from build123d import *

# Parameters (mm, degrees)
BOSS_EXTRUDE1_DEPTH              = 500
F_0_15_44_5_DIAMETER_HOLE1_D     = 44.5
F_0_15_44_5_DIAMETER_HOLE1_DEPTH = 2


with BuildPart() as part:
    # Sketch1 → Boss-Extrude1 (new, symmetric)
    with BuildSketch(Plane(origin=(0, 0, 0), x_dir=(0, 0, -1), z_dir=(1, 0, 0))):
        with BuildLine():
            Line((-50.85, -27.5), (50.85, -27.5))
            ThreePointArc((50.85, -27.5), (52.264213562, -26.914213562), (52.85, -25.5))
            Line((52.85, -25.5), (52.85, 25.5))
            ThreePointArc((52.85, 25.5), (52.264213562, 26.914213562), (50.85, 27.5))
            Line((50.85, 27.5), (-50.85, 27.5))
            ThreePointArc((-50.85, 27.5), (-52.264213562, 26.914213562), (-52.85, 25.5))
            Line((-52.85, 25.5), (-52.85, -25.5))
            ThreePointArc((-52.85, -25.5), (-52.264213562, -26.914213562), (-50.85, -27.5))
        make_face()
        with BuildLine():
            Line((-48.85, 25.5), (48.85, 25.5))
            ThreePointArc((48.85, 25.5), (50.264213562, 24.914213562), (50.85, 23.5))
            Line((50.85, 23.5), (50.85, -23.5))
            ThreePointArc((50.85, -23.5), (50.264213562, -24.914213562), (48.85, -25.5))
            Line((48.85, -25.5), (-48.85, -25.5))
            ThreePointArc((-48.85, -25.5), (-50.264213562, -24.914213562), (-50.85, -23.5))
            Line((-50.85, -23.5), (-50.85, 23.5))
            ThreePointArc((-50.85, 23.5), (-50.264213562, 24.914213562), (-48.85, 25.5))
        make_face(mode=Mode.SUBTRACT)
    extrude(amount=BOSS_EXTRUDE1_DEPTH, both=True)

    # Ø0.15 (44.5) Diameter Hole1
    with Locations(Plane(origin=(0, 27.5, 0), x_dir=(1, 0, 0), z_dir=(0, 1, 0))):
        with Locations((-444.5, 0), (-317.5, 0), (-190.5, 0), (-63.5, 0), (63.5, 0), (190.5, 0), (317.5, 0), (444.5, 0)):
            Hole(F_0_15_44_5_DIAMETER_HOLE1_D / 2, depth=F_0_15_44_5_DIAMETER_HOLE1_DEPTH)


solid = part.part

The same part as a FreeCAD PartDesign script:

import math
import FreeCAD as App
import Part
import Sketcher

V = App.Vector
Q = App.Units.Quantity

doc = App.newDocument("Part")
body = doc.addObject("PartDesign::Body", "Body")

# Sketch on YZ plane
sketch1 = doc.addObject("Sketcher::SketchObject", "Sketch")
body.addObject(sketch1)
sketch1.AttachmentSupport = (doc.YZ_Plane, [""])
sketch1.MapMode = "FlatFace"
sketch1.addGeometry([
    Part.LineSegment(V(-27.5, 50.85, 0), V(-27.5, -50.85, 0)),  # 0
    Part.ArcOfCircle(Part.Circle(V(-25.5, -50.85, 0), V(0, 0, 1), 2), math.radians(-180), math.radians(-90)),  # 1
    Part.LineSegment(V(-25.5, -52.85, 0), V(25.5, -52.85, 0)),  # 2
    Part.ArcOfCircle(Part.Circle(V(25.5, -50.85, 0), V(0, 0, 1), 2), math.radians(-90), math.radians(0)),  # 3
    Part.LineSegment(V(27.5, -50.85, 0), V(27.5, 50.85, 0)),  # 4
    Part.ArcOfCircle(Part.Circle(V(25.5, 50.85, 0), V(0, 0, 1), 2), math.radians(0), math.radians(90)),  # 5
    Part.LineSegment(V(25.5, 52.85, 0), V(-25.5, 52.85, 0)),  # 6
    Part.ArcOfCircle(Part.Circle(V(-25.5, 50.85, 0), V(0, 0, 1), 2), math.radians(90), math.radians(180)),  # 7
    Part.ArcOfCircle(Part.Circle(V(23.5, 48.85, 0), V(0, 0, 1), 2), math.radians(0), math.radians(90)),  # 8
    Part.LineSegment(V(25.5, 48.85, 0), V(25.5, -48.85, 0)),  # 9
    Part.ArcOfCircle(Part.Circle(V(23.5, -48.85, 0), V(0, 0, 1), 2), math.radians(-90), math.radians(0)),  # 10
    Part.LineSegment(V(23.5, -50.85, 0), V(-23.5, -50.85, 0)),  # 11
    Part.ArcOfCircle(Part.Circle(V(-23.5, -48.85, 0), V(0, 0, 1), 2), math.radians(-180), math.radians(-90)),  # 12
    Part.LineSegment(V(-25.5, -48.85, 0), V(-25.5, 48.85, 0)),  # 13
    Part.ArcOfCircle(Part.Circle(V(-23.5, 48.85, 0), V(0, 0, 1), 2), math.radians(90), math.radians(180)),  # 14
    Part.LineSegment(V(-23.5, 50.85, 0), V(23.5, 50.85, 0)),  # 15
], False)
sketch1.addConstraint([
    Sketcher.Constraint("Tangent", 0, 2, 1, 1),
    Sketcher.Constraint("Tangent", 1, 2, 2, 1),
    Sketcher.Constraint("Tangent", 2, 2, 3, 1),
    Sketcher.Constraint("Tangent", 3, 2, 4, 1),
    Sketcher.Constraint("Tangent", 4, 2, 5, 1),
    Sketcher.Constraint("Tangent", 5, 2, 6, 1),
    Sketcher.Constraint("Tangent", 6, 2, 7, 1),
    Sketcher.Constraint("Tangent", 7, 2, 0, 1),
    Sketcher.Constraint("Tangent", 8, 1, 9, 1),
    Sketcher.Constraint("Tangent", 9, 2, 10, 2),
    Sketcher.Constraint("Tangent", 10, 1, 11, 1),
    Sketcher.Constraint("Tangent", 11, 2, 12, 2),
    Sketcher.Constraint("Tangent", 12, 1, 13, 1),
    Sketcher.Constraint("Tangent", 13, 2, 14, 2),
    Sketcher.Constraint("Tangent", 14, 1, 15, 1),
    Sketcher.Constraint("Tangent", 15, 2, 8, 2),
    Sketcher.Constraint("Vertical", 0),
    Sketcher.Constraint("Horizontal", 2),
    Sketcher.Constraint("Vertical", 4),
    Sketcher.Constraint("Horizontal", 6),
    Sketcher.Constraint("Vertical", 9),
    Sketcher.Constraint("Horizontal", 11),
    Sketcher.Constraint("Vertical", 13),
    Sketcher.Constraint("Horizontal", 15),
    Sketcher.Constraint("Equal", 1, 3),
    Sketcher.Constraint("Equal", 3, 5),
    Sketcher.Constraint("Equal", 5, 7),
    Sketcher.Constraint("Equal", 7, 8),
    Sketcher.Constraint("Equal", 8, 10),
    Sketcher.Constraint("Equal", 10, 12),
    Sketcher.Constraint("Equal", 12, 14),
    Sketcher.Constraint("Symmetric", 1, 3, 5, 3, -1, 1),
    Sketcher.Constraint("Symmetric", 8, 3, 12, 3, -1, 1),
    Sketcher.Constraint("Horizontal", 3, 2, 10, 1),
    Sketcher.Constraint("Vertical", 5, 2, 8, 1),
    Sketcher.Constraint("Radius", 1, Q("2 mm")),
    Sketcher.Constraint("DistanceX", 2, 1, 2, 2, Q("51 mm")),
    Sketcher.Constraint("DistanceY", 0, 2, 0, 1, Q("101.7 mm")),
])
pad1 = doc.addObject("PartDesign::Pad", "Pad")
body.addObject(pad1)
pad1.Profile = sketch1
pad1.Length = 1000
pad1.Midplane = True

# Sketch on XZ plane
sketch2 = doc.addObject("Sketcher::SketchObject", "Sketch001")
body.addObject(sketch2)
sketch2.AttachmentSupport = (doc.XZ_Plane, [""])
sketch2.MapMode = "FlatFace"
sketch2.AttachmentOffset = App.Placement(V(0, 0, -27.5), App.Rotation())
sketch2.addGeometry([
    Part.Circle(V(-444.5, 0, 0), V(0, 0, 1), 22.25),  # 0
    Part.Circle(V(-317.5, 0, 0), V(0, 0, 1), 22.25),  # 1
    Part.Circle(V(-190.5, 0, 0), V(0, 0, 1), 22.25),  # 2
    Part.Circle(V(-63.5, 0, 0), V(0, 0, 1), 22.25),  # 3
    Part.Circle(V(63.5, 0, 0), V(0, 0, 1), 22.25),  # 4
    Part.Circle(V(190.5, 0, 0), V(0, 0, 1), 22.25),  # 5
    Part.Circle(V(317.5, 0, 0), V(0, 0, 1), 22.25),  # 6
    Part.Circle(V(444.5, 0, 0), V(0, 0, 1), 22.25),  # 7
], False)
sketch2.addConstraint([
    Sketcher.Constraint("Equal", 0, 1),
    Sketcher.Constraint("Equal", 1, 2),
    Sketcher.Constraint("Equal", 2, 3),
    Sketcher.Constraint("Equal", 3, 4),
    Sketcher.Constraint("Equal", 4, 5),
    Sketcher.Constraint("Equal", 5, 6),
    Sketcher.Constraint("Equal", 6, 7),
    Sketcher.Constraint("Symmetric", 3, 3, 4, 3, -1, 1),
    Sketcher.Constraint("Symmetric", 2, 3, 5, 3, -1, 1),
    Sketcher.Constraint("Symmetric", 1, 3, 6, 3, -1, 1),
    Sketcher.Constraint("Symmetric", 0, 3, 7, 3, -1, 1),
    Sketcher.Constraint("PointOnObject", 0, 3, -1),
    Sketcher.Constraint("PointOnObject", 1, 3, -1),
    Sketcher.Constraint("PointOnObject", 2, 3, -1),
    Sketcher.Constraint("PointOnObject", 3, 3, -1),
    Sketcher.Constraint("Diameter", 0, Q("44.5 mm")),
    Sketcher.Constraint("DistanceX", 0, 3, 1, 3, Q("127 mm")),
    Sketcher.Constraint("DistanceX", 1, 3, 2, 3, Q("127 mm")),
    Sketcher.Constraint("DistanceX", 2, 3, 3, 3, Q("127 mm")),
    Sketcher.Constraint("DistanceX", 3, 3, 4, 3, Q("127 mm")),
])
doc.recompute()
hole = doc.addObject("PartDesign::Hole", "Hole")
body.addObject(hole)
hole.Profile = sketch2
hole.ThreadType = "None"
hole.Diameter = 44.5
hole.DepthType = "Dimension"
hole.Depth = 2
hole.DrillPoint = "Flat"
hole.Reversed = True

doc.recompute()
